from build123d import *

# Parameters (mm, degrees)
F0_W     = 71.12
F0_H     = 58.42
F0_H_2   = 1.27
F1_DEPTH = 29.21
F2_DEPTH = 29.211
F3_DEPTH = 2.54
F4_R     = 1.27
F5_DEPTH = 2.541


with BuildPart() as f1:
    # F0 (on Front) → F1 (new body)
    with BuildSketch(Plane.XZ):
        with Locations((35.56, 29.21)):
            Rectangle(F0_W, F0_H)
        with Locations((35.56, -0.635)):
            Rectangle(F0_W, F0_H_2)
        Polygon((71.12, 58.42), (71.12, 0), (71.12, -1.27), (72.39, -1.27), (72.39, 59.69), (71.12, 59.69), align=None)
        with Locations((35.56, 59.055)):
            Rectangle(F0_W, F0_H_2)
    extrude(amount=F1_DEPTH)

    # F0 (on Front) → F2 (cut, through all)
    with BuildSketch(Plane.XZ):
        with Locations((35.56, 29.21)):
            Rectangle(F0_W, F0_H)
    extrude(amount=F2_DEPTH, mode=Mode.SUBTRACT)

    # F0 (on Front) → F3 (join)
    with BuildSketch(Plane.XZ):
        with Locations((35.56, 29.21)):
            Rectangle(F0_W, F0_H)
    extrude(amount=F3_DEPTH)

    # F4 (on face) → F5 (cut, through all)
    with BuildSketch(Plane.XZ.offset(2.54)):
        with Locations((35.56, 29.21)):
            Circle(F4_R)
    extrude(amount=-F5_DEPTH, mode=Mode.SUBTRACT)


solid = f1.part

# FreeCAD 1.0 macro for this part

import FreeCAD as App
import Part
import Sketcher
from FreeCAD import Vector
Q = App.Units.Quantity


def add_polygon(sketch, points):
    """Adds a closed chain of lines whose ends are joined by coincident constraints."""
    first, n = sketch.GeometryCount, len(points)
    for a, b in zip(points, points[1:] + points[:1]):
        sketch.addGeometry(Part.LineSegment(App.Vector(*a, 0), App.Vector(*b, 0)), False)
    for i in range(n):
        sketch.addConstraint(Sketcher.Constraint("Coincident", first + i, 2, first + (i + 1) % n, 1))

doc = App.newDocument("Part")
body = doc.addObject("PartDesign::Body", "Body")

# Sketch on XZ plane
sketch1 = doc.addObject("Sketcher::SketchObject", "Sketch")
body.addObject(sketch1)
sketch1.AttachmentSupport = (doc.XZ_Plane, [""])
sketch1.MapMode = "FlatFace"
add_polygon(sketch1, [(0, -1), (72, -1), (72, 60), (0, 60)])  # lines 0-3
sketch1.addConstraint([
    Sketcher.Constraint("Horizontal", 0),
    Sketcher.Constraint("Vertical", 1),
    Sketcher.Constraint("Horizontal", 2),
    Sketcher.Constraint("Vertical", 3),
    Sketcher.Constraint("PointOnObject", 2, 2, -2),
    Sketcher.Constraint("DistanceY", 1, 1, 1, 2, Q("2.4 in")),
    Sketcher.Constraint("DistanceX", 0, 1, 0, 2, Q("2.85 in")),
    Sketcher.Constraint("DistanceY", 0, 2, -1, 1, Q("0.05 in")),
])
pad1 = doc.addObject("PartDesign::Pad", "Pad")
body.addObject(pad1)
pad1.Profile = sketch1
pad1.Length = Q("1.15 in")

# Sketch on XZ plane
sketch2 = doc.addObject("Sketcher::SketchObject", "Sketch001")
body.addObject(sketch2)
sketch2.AttachmentSupport = (doc.XZ_Plane, [""])
sketch2.MapMode = "FlatFace"
add_polygon(sketch2, [(0, 58), (0, 0), (71, 0), (71, 58)])  # lines 0-3
sketch2.addConstraint([
    Sketcher.Constraint("Vertical", 0),
    Sketcher.Constraint("Horizontal", 1),
    Sketcher.Constraint("Vertical", 2),
    Sketcher.Constraint("Horizontal", 3),
    Sketcher.Constraint("Coincident", 0, 2, -1, 1),
    Sketcher.Constraint("DistanceX", 1, 1, 1, 2, Q("2.8 in")),
    Sketcher.Constraint("DistanceY", 0, 2, 0, 1, Q("2.3 in")),
])
pocket1 = doc.addObject("PartDesign::Pocket", "Pocket")
body.addObject(pocket1)
pocket1.Profile = sketch2
pocket1.Type = "ThroughAll"
pocket1.Reversed = True

# Sketch on XZ plane
sketch3 = doc.addObject("Sketcher::SketchObject", "Sketch002")
body.addObject(sketch3)
sketch3.AttachmentSupport = (doc.XZ_Plane, [""])
sketch3.MapMode = "FlatFace"
add_polygon(sketch3, [(0, 58), (0, 0), (71, 0), (71, 58)])  # lines 0-3
sketch3.addConstraint([
    Sketcher.Constraint("Vertical", 0),
    Sketcher.Constraint("Horizontal", 1),
    Sketcher.Constraint("Vertical", 2),
    Sketcher.Constraint("Horizontal", 3),
    Sketcher.Constraint("Coincident", 0, 2, -1, 1),
    Sketcher.Constraint("DistanceX", 1, 1, 1, 2, Q("2.8 in")),
    Sketcher.Constraint("DistanceY", 0, 2, 0, 1, Q("2.3 in")),
])
pad2 = doc.addObject("PartDesign::Pad", "Pad001")
body.addObject(pad2)
pad2.Profile = sketch3
pad2.Length = Q("0.1 in")

# Sketch on XZ plane
sketch4 = doc.addObject("Sketcher::SketchObject", "Sketch003")
body.addObject(sketch4)
sketch4.AttachmentSupport = (doc.XZ_Plane, [""])
sketch4.MapMode = "FlatFace"
sketch4.AttachmentOffset = App.Placement(Vector(0, 0, 0.1 * 25.4), App.Rotation())
sketch4.addGeometry(Part.Circle(Vector(35.6, 29.2, 0), Vector(0, 0, 1), 1.3), False)
sketch4.addConstraint([
    Sketcher.Constraint("Diameter", 0, Q("0.1 in")),
    Sketcher.Constraint("DistanceX", -1, 1, 0, 3, Q("1.4 in")),
    Sketcher.Constraint("DistanceY", -1, 1, 0, 3, Q("1.15 in")),
])
pocket2 = doc.addObject("PartDesign::Pocket", "Pocket001")
body.addObject(pocket2)
pocket2.Profile = sketch4
pocket2.Type = "ThroughAll"

doc.recompute()
